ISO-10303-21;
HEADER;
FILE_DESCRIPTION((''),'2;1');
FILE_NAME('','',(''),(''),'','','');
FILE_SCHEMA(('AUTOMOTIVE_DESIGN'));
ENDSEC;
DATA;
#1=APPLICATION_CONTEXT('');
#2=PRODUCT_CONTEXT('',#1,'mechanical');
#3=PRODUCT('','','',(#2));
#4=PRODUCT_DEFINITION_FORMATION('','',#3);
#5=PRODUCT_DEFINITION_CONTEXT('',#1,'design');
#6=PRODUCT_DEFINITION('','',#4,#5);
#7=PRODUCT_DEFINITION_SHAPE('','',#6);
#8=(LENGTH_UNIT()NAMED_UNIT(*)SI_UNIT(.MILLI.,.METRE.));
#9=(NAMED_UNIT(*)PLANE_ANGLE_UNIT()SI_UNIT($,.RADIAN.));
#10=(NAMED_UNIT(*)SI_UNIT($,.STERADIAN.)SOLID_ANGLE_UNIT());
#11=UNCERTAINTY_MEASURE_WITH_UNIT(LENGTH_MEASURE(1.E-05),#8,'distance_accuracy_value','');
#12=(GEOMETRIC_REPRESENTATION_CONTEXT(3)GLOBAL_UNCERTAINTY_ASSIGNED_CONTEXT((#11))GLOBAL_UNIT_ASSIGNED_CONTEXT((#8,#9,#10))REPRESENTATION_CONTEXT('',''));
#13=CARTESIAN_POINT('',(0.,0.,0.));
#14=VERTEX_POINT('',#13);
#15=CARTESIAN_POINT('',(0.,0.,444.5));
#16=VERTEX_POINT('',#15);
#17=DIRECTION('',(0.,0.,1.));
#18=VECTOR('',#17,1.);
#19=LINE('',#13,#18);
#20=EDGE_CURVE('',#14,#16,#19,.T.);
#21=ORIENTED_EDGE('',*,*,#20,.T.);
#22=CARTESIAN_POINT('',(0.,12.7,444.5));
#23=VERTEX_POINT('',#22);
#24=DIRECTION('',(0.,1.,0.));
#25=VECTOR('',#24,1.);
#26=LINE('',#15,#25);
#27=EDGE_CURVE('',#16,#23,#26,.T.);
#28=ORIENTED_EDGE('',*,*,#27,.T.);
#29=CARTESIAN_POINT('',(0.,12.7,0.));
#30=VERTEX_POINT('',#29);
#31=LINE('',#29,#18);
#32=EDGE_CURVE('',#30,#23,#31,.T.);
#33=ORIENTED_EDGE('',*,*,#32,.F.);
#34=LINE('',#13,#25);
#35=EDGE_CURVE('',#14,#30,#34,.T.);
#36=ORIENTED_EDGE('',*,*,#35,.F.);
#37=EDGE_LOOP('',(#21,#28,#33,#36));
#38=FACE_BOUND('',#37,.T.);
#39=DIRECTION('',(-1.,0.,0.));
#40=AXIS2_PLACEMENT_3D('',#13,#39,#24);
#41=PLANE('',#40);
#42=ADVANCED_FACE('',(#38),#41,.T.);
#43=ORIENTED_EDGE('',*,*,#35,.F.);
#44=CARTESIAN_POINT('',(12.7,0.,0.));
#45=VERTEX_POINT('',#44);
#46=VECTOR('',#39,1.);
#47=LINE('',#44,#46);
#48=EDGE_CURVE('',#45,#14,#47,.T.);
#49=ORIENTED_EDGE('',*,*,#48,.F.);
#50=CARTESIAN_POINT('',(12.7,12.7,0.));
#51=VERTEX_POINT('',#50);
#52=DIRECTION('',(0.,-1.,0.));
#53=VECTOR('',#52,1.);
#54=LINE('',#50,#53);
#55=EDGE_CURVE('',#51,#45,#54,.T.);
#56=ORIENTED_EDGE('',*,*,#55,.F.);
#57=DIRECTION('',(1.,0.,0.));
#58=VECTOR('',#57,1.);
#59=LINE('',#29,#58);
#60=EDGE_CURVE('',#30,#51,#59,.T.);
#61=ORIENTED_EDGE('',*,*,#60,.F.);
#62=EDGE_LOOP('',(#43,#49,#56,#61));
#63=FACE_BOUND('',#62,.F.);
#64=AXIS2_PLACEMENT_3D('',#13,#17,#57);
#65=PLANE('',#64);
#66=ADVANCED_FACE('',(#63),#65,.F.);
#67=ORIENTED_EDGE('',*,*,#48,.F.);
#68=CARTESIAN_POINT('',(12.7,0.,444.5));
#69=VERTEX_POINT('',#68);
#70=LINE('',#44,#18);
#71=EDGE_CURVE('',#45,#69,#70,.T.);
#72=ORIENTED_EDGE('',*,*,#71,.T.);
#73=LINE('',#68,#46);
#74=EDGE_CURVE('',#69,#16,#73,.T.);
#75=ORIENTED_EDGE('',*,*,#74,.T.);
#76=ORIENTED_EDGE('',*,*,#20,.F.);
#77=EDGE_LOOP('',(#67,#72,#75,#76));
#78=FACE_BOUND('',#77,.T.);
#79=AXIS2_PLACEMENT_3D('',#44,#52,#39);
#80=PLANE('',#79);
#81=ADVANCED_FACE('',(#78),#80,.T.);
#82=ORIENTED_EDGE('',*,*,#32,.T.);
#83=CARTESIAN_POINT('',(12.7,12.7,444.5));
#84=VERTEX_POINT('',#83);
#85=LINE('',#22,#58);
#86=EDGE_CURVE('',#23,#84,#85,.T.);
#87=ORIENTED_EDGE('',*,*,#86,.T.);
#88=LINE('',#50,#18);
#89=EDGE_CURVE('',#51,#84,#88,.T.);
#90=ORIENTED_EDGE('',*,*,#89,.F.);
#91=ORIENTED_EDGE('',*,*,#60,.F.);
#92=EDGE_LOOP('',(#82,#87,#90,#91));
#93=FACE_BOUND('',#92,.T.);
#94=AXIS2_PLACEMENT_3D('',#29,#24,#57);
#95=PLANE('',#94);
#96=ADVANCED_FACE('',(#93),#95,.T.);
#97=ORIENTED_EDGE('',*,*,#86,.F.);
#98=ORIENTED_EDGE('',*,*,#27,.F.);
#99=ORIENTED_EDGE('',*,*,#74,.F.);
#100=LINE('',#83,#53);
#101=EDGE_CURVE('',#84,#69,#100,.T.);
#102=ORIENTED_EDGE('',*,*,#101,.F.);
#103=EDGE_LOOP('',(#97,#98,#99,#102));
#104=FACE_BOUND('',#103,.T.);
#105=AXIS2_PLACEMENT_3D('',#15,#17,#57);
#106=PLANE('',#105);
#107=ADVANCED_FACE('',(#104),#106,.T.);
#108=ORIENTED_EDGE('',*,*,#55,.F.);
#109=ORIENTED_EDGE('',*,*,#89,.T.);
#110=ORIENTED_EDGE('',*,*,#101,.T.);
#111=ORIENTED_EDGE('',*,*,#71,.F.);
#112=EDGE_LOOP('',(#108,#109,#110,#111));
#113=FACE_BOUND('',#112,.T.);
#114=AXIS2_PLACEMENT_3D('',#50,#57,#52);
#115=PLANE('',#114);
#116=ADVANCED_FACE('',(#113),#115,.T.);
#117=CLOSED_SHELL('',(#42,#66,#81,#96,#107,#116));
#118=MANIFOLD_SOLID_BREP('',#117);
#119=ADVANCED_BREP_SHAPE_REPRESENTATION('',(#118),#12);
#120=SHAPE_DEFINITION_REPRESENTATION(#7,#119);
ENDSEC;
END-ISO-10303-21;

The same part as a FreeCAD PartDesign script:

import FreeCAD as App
import Part
import Sketcher
Q = App.Units.Quantity

doc = App.newDocument("Part")
params = doc.addObject("Spreadsheet::Sheet", "Params")
for row, (alias, value) in enumerate([
    ("sketch1_width", "0.5 in"),
    ("pad1_length", "17.5 in"),
], start=1):
    params.set(f"A{row}", alias)
    params.set(f"B{row}", "=" + value)
    params.setAlias(f"B{row}", alias)

body = doc.addObject("PartDesign::Body", "Body")

# Sketch on XY plane
sketch1 = body.newObject("Sketcher::SketchObject", "Sketch")
sketch1.AttachmentSupport = (doc.getObject("XY_Plane"), [""])
sketch1.MapMode = "FlatFace"
sketch1.addGeometry([
    Part.LineSegment(App.Vector(13, 13, 0), App.Vector(0, 13, 0)),
    Part.LineSegment(App.Vector(0, 13, 0), App.Vector(0, 0, 0)),
    Part.LineSegment(App.Vector(0, 0, 0), App.Vector(13, 0, 0)),
    Part.LineSegment(App.Vector(13, 0, 0), App.Vector(13, 13, 0)),
], False)
sketch1.addConstraint([
    Sketcher.Constraint("Coincident", 0, 2, 1, 1),
    Sketcher.Constraint("Coincident", 1, 2, 2, 1),
    Sketcher.Constraint("Coincident", 2, 2, 3, 1),
    Sketcher.Constraint("Coincident", 3, 2, 0, 1),
    Sketcher.Constraint("Horizontal", 0),
    Sketcher.Constraint("Vertical", 1),
    Sketcher.Constraint("Horizontal", 2),
    Sketcher.Constraint("Vertical", 3),
    Sketcher.Constraint("Coincident", 1, 2, -1, 1),
    Sketcher.Constraint("Equal", 2, 1),
    Sketcher.Constraint("DistanceX", 0, 2, 0, 1, Q("0.5 in")),
])
sketch1.setExpression("Constraints[10]", "Params.sketch1_width")
pad1 = body.newObject("PartDesign::Pad", "Pad")
pad1.Profile = sketch1
pad1.setExpression("Length", "Params.pad1_length")

doc.recompute()
